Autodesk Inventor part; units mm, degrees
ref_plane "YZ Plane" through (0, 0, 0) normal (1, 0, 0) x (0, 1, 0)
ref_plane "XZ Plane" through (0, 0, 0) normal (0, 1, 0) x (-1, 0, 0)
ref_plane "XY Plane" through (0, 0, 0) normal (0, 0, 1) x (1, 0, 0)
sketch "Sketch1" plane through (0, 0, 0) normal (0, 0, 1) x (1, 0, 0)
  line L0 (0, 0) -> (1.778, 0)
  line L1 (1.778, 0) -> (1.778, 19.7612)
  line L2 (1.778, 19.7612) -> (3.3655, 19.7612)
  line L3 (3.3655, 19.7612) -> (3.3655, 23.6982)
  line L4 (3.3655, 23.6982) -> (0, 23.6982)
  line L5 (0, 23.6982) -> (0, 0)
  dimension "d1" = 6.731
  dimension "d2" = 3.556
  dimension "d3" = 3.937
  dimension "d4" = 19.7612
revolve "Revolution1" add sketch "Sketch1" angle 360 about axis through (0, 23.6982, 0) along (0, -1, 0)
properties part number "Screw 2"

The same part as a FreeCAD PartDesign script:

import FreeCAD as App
import Part
import Sketcher

V = App.Vector
Q = App.Units.Quantity

doc = App.newDocument("Part")
body = doc.addObject("PartDesign::Body", "Body")

# Sketch on XY plane
sketch1 = body.newObject("Sketcher::SketchObject", "Sketch")
sketch1.AttachmentSupport = (doc.getObject("XY_Plane"), [""])
sketch1.MapMode = "FlatFace"
sketch1.addGeometry([
    Part.LineSegment(V(0, 23.7, 0), V(0, 0, 0)),  # 0
    Part.LineSegment(V(0, 0, 0), V(1.8, 0, 0)),  # 1
    Part.LineSegment(V(1.8, 0, 0), V(1.8, 19.8, 0)),  # 2
    Part.LineSegment(V(1.8, 19.8, 0), V(3.4, 19.8, 0)),  # 3
    Part.LineSegment(V(3.4, 19.8, 0), V(3.4, 23.7, 0)),  # 4
    Part.LineSegment(V(3.4, 23.7, 0), V(0, 23.7, 0)),  # 5
], False)
sketch1.addConstraint([
    Sketcher.Constraint("Coincident", 0, 2, 1, 1),
    Sketcher.Constraint("Coincident", 1, 2, 2, 1),
    Sketcher.Constraint("Coincident", 2, 2, 3, 1),
    Sketcher.Constraint("Coincident", 3, 2, 4, 1),
    Sketcher.Constraint("Coincident", 4, 2, 5, 1),
    Sketcher.Constraint("Coincident", 5, 2, 0, 1),
    Sketcher.Constraint("Vertical", 0),
    Sketcher.Constraint("Horizontal", 1),
    Sketcher.Constraint("Vertical", 2),
    Sketcher.Constraint("Horizontal", 3),
    Sketcher.Constraint("Vertical", 4),
    Sketcher.Constraint("Horizontal", 5),
    Sketcher.Constraint("Coincident", 0, 2, -1, 1),
    Sketcher.Constraint("DistanceY", 2, 1, 2, 2, Q("0.778 in")),
    Sketcher.Constraint("DistanceY", 4, 1, 4, 2, Q("0.155 in")),
    Sketcher.Constraint("DistanceX", 1, 1, 1, 2, Q("0.07 in")),
    Sketcher.Constraint("DistanceX", 3, 1, 3, 2, Q("0.0625 in")),
])
revolution = body.newObject("PartDesign::Revolution", "Revolution")
revolution.Profile = sketch1
revolution.ReferenceAxis = (sketch1, ["V_Axis"])
revolution.Angle = 360

doc.recompute()
